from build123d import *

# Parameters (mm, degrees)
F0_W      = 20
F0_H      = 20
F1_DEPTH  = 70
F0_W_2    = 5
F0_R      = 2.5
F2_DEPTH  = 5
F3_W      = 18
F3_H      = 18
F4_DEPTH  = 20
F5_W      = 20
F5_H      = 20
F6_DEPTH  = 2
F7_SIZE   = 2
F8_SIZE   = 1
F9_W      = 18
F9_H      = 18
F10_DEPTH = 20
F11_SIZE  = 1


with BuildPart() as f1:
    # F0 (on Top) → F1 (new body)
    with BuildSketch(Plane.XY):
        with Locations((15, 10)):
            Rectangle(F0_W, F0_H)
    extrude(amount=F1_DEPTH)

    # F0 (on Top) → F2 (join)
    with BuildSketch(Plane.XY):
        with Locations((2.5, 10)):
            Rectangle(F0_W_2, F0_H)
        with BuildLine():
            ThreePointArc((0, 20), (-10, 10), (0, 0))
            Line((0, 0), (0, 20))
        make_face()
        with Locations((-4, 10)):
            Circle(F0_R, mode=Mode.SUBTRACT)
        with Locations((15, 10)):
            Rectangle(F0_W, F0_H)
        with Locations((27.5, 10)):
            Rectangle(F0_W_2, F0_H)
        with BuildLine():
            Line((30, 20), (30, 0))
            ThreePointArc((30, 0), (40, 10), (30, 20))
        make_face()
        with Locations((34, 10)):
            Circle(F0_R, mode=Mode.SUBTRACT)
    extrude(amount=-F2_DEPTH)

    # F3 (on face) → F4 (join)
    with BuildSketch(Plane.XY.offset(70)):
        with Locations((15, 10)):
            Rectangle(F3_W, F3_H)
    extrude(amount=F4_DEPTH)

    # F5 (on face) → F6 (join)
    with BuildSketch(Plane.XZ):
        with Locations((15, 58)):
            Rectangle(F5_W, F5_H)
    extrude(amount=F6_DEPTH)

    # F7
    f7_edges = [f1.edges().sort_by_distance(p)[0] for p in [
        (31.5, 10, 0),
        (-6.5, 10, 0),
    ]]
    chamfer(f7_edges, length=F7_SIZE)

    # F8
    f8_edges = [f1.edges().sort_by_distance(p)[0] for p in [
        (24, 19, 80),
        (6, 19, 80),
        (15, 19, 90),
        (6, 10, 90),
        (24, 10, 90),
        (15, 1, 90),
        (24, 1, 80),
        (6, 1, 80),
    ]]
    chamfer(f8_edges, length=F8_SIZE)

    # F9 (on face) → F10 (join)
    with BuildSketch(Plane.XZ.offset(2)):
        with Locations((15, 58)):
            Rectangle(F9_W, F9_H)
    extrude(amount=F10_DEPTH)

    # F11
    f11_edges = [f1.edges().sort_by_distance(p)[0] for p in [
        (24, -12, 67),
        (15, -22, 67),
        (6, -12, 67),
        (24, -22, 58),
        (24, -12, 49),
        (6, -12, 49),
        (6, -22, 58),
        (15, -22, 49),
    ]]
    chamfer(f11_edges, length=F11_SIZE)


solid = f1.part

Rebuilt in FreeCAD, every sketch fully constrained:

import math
import FreeCAD as App
import Part
import Sketcher
from FreeCAD import Vector
Q = App.Units.Quantity


def edges_at(feature, points):
    """Names of the edges that pass closest to the given points."""
    edges = feature.Shape.Edges
    near = lambda p: min(range(len(edges)), key=lambda i: edges[i].distToShape(Part.Vertex(*p))[0])
    return sorted({f"Edge{near(p) + 1}" for p in points})

doc = App.newDocument("Part")
body = doc.addObject("PartDesign::Body", "Body")

sketch1 = body.newObject("Sketcher::SketchObject", "Sketch")
sketch1.AttachmentSupport = (doc.getObject("XY_Plane"), [""])
sketch1.MapMode = "FlatFace"
sketch1.addGeometry(Part.LineSegment(Vector(5, 20, 0), Vector(5, 0, 0)), False)
sketch1.addGeometry(Part.LineSegment(Vector(5, 0, 0), Vector(25, 0, 0)), False)
sketch1.addGeometry(Part.LineSegment(Vector(25, 0, 0), Vector(25, 20, 0)), False)
sketch1.addGeometry(Part.LineSegment(Vector(25, 20, 0), Vector(5, 20, 0)), False)
sketch1.addConstraint(Sketcher.Constraint("Coincident", 0, 2, 1, 1))
sketch1.addConstraint(Sketcher.Constraint("Coincident", 1, 2, 2, 1))
sketch1.addConstraint(Sketcher.Constraint("Coincident", 2, 2, 3, 1))
sketch1.addConstraint(Sketcher.Constraint("Coincident", 3, 2, 0, 1))
sketch1.addConstraint(Sketcher.Constraint("Vertical", 0))
sketch1.addConstraint(Sketcher.Constraint("Horizontal", 1))
sketch1.addConstraint(Sketcher.Constraint("Vertical", 2))
sketch1.addConstraint(Sketcher.Constraint("Horizontal", 3))
sketch1.addConstraint(Sketcher.Constraint("PointOnObject", 0, 2, -1))
sketch1.addConstraint(Sketcher.Constraint("Equal", 3, 0))
sketch1.addConstraint(Sketcher.Constraint("DistanceX", 1, 1, 1, 2, Q("20 mm")))
sketch1.addConstraint(Sketcher.Constraint("DistanceX", -1, 1, 0, 2, Q("5 mm")))
pad1 = body.newObject("PartDesign::Pad", "Pad")
pad1.Profile = sketch1
pad1.Length = 70

sketch2 = body.newObject("Sketcher::SketchObject", "Sketch001")
sketch2.AttachmentSupport = (doc.getObject("XY_Plane"), [""])
sketch2.MapMode = "FlatFace"
sketch2.addGeometry(Part.LineSegment(Vector(0, 0, 0), Vector(30, 0, 0)), False)
sketch2.addGeometry(Part.ArcOfCircle(Part.Circle(Vector(30, 10, 0), Vector(0, 0, 1), 10), math.radians(-90), math.radians(90)), False)
sketch2.addGeometry(Part.LineSegment(Vector(30, 20, 0), Vector(0, 20, 0)), False)
sketch2.addGeometry(Part.ArcOfCircle(Part.Circle(Vector(0, 10, 0), Vector(0, 0, 1), 10), math.radians(90), math.radians(270)), False)
sketch2.addGeometry(Part.Circle(Vector(-4, 10, 0), Vector(0, 0, 1), 2.5), False)
sketch2.addGeometry(Part.Circle(Vector(34, 10, 0), Vector(0, 0, 1), 2.5), False)
sketch2.addConstraint(Sketcher.Constraint("Tangent", 0, 2, 1, 1))
sketch2.addConstraint(Sketcher.Constraint("Tangent", 1, 2, 2, 1))
sketch2.addConstraint(Sketcher.Constraint("Tangent", 2, 2, 3, 1))
sketch2.addConstraint(Sketcher.Constraint("Tangent", 3, 2, 0, 1))
sketch2.addConstraint(Sketcher.Constraint("Horizontal", 0))
sketch2.addConstraint(Sketcher.Constraint("Horizontal", 2))
sketch2.addConstraint(Sketcher.Constraint("Coincident", 3, 2, -1, 1))
sketch2.addConstraint(Sketcher.Constraint("Equal", 4, 5))
sketch2.addConstraint(Sketcher.Constraint("Horizontal", 3, 3, 4, 3))
sketch2.addConstraint(Sketcher.Constraint("Horizontal", 4, 3, 5, 3))
sketch2.addConstraint(Sketcher.Constraint("Diameter", 4, Q("5 mm")))
sketch2.addConstraint(Sketcher.Constraint("Radius", 1, Q("10 mm")))
sketch2.addConstraint(Sketcher.Constraint("DistanceX", 0, 1, 0, 2, Q("30 mm")))
sketch2.addConstraint(Sketcher.Constraint("DistanceX", 4, 3, -1, 1, Q("4 mm")))
sketch2.addConstraint(Sketcher.Constraint("DistanceX", -1, 1, 5, 3, Q("34 mm")))
pad2 = body.newObject("PartDesign::Pad", "Pad001")
pad2.Profile = sketch2
pad2.Length = 5
pad2.Reversed = True

sketch3 = body.newObject("Sketcher::SketchObject", "Sketch002")
sketch3.AttachmentSupport = (doc.getObject("XY_Plane"), [""])
sketch3.MapMode = "FlatFace"
sketch3.AttachmentOffset = App.Placement(Vector(0, 0, 70), App.Rotation())
sketch3.addGeometry(Part.LineSegment(Vector(6, 19, 0), Vector(6, 1, 0)), False)
sketch3.addGeometry(Part.LineSegment(Vector(6, 1, 0), Vector(24, 1, 0)), False)
sketch3.addGeometry(Part.LineSegment(Vector(24, 1, 0), Vector(24, 19, 0)), False)
sketch3.addGeometry(Part.LineSegment(Vector(24, 19, 0), Vector(6, 19, 0)), False)
sketch3.addConstraint(Sketcher.Constraint("Coincident", 0, 2, 1, 1))
sketch3.addConstraint(Sketcher.Constraint("Coincident", 1, 2, 2, 1))
sketch3.addConstraint(Sketcher.Constraint("Coincident", 2, 2, 3, 1))
sketch3.addConstraint(Sketcher.Constraint("Coincident", 3, 2, 0, 1))
sketch3.addConstraint(Sketcher.Constraint("Vertical", 0))
sketch3.addConstraint(Sketcher.Constraint("Horizontal", 1))
sketch3.addConstraint(Sketcher.Constraint("Vertical", 2))
sketch3.addConstraint(Sketcher.Constraint("Horizontal", 3))
sketch3.addConstraint(Sketcher.Constraint("Equal", 3, 0))
sketch3.addConstraint(Sketcher.Constraint("DistanceX", 1, 1, 1, 2, Q("18 mm")))
sketch3.addConstraint(Sketcher.Constraint("DistanceX", -1, 1, 0, 2, Q("6 mm")))
sketch3.addConstraint(Sketcher.Constraint("DistanceY", -1, 1, 0, 2, Q("1 mm")))
pad3 = body.newObject("PartDesign::Pad", "Pad002")
pad3.Profile = sketch3
pad3.Length = 20

sketch4 = body.newObject("Sketcher::SketchObject", "Sketch003")
sketch4.AttachmentSupport = (doc.getObject("XZ_Plane"), [""])
sketch4.MapMode = "FlatFace"
sketch4.addGeometry(Part.LineSegment(Vector(5, 68, 0), Vector(5, 48, 0)), False)
sketch4.addGeometry(Part.LineSegment(Vector(5, 48, 0), Vector(25, 48, 0)), False)
sketch4.addGeometry(Part.LineSegment(Vector(25, 48, 0), Vector(25, 68, 0)), False)
sketch4.addGeometry(Part.LineSegment(Vector(25, 68, 0), Vector(5, 68, 0)), False)
sketch4.addConstraint(Sketcher.Constraint("Coincident", 0, 2, 1, 1))
sketch4.addConstraint(Sketcher.Constraint("Coincident", 1, 2, 2, 1))
sketch4.addConstraint(Sketcher.Constraint("Coincident", 2, 2, 3, 1))
sketch4.addConstraint(Sketcher.Constraint("Coincident", 3, 2, 0, 1))
sketch4.addConstraint(Sketcher.Constraint("Vertical", 0))
sketch4.addConstraint(Sketcher.Constraint("Horizontal", 1))
sketch4.addConstraint(Sketcher.Constraint("Vertical", 2))
sketch4.addConstraint(Sketcher.Constraint("Horizontal", 3))
sketch4.addConstraint(Sketcher.Constraint("Equal", 3, 0))
sketch4.addConstraint(Sketcher.Constraint("DistanceX", 1, 1, 1, 2, Q("20 mm")))
sketch4.addConstraint(Sketcher.Constraint("DistanceX", -1, 1, 0, 2, Q("5 mm")))
sketch4.addConstraint(Sketcher.Constraint("DistanceY", -1, 1, 0, 2, Q("48 mm")))
pad4 = body.newObject("PartDesign::Pad", "Pad003")
pad4.Profile = sketch4
pad4.Length = 2
doc.recompute()

chamfer = body.newObject("PartDesign::Chamfer", "Chamfer")
chamfer.Base = (pad4, edges_at(pad4, [(31.5, 10, 0), (-6.5, 10, 0)]))
chamfer.Size = 2
doc.recompute()

chamfer2 = body.newObject("PartDesign::Chamfer", "Chamfer001")
chamfer2.Base = (chamfer, edges_at(chamfer, [
    (24, 19, 80),
    (6, 19, 80),
    (15, 19, 90),
    (6, 10, 90),
    (24, 10, 90),
    (15, 1, 90),
    (24, 1, 80),
    (6, 1, 80),
]))
chamfer2.Size = 1

sketch5 = body.newObject("Sketcher::SketchObject", "Sketch004")
sketch5.AttachmentSupport = (doc.getObject("XZ_Plane"), [""])
sketch5.MapMode = "FlatFace"
sketch5.AttachmentOffset = App.Placement(Vector(0, 0, 2), App.Rotation())
sketch5.addGeometry(Part.LineSegment(Vector(6, 67, 0), Vector(6, 49, 0)), False)
sketch5.addGeometry(Part.LineSegment(Vector(6, 49, 0), Vector(24, 49, 0)), False)
sketch5.addGeometry(Part.LineSegment(Vector(24, 49, 0), Vector(24, 67, 0)), False)
sketch5.addGeometry(Part.LineSegment(Vector(24, 67, 0), Vector(6, 67, 0)), False)
sketch5.addConstraint(Sketcher.Constraint("Coincident", 0, 2, 1, 1))
sketch5.addConstraint(Sketcher.Constraint("Coincident", 1, 2, 2, 1))
sketch5.addConstraint(Sketcher.Constraint("Coincident", 2, 2, 3, 1))
sketch5.addConstraint(Sketcher.Constraint("Coincident", 3, 2, 0, 1))
sketch5.addConstraint(Sketcher.Constraint("Vertical", 0))
sketch5.addConstraint(Sketcher.Constraint("Horizontal", 1))
sketch5.addConstraint(Sketcher.Constraint("Vertical", 2))
sketch5.addConstraint(Sketcher.Constraint("Horizontal", 3))
sketch5.addConstraint(Sketcher.Constraint("Equal", 3, 0))
sketch5.addConstraint(Sketcher.Constraint("DistanceX", 1, 1, 1, 2, Q("18 mm")))
sketch5.addConstraint(Sketcher.Constraint("DistanceX", -1, 1, 0, 2, Q("6 mm")))
sketch5.addConstraint(Sketcher.Constraint("DistanceY", -1, 1, 0, 2, Q("49 mm")))
pad5 = body.newObject("PartDesign::Pad", "Pad004")
pad5.Profile = sketch5
pad5.Length = 20
doc.recompute()

chamfer3 = body.newObject("PartDesign::Chamfer", "Chamfer002")
chamfer3.Base = (pad5, edges_at(pad5, [
    (24, -12, 67),
    (15, -22, 67),
    (6, -12, 67),
    (24, -22, 58),
    (24, -12, 49),
    (6, -12, 49),
    (6, -22, 58),
    (15, -22, 49),
]))
chamfer3.Size = 1

doc.recompute()
